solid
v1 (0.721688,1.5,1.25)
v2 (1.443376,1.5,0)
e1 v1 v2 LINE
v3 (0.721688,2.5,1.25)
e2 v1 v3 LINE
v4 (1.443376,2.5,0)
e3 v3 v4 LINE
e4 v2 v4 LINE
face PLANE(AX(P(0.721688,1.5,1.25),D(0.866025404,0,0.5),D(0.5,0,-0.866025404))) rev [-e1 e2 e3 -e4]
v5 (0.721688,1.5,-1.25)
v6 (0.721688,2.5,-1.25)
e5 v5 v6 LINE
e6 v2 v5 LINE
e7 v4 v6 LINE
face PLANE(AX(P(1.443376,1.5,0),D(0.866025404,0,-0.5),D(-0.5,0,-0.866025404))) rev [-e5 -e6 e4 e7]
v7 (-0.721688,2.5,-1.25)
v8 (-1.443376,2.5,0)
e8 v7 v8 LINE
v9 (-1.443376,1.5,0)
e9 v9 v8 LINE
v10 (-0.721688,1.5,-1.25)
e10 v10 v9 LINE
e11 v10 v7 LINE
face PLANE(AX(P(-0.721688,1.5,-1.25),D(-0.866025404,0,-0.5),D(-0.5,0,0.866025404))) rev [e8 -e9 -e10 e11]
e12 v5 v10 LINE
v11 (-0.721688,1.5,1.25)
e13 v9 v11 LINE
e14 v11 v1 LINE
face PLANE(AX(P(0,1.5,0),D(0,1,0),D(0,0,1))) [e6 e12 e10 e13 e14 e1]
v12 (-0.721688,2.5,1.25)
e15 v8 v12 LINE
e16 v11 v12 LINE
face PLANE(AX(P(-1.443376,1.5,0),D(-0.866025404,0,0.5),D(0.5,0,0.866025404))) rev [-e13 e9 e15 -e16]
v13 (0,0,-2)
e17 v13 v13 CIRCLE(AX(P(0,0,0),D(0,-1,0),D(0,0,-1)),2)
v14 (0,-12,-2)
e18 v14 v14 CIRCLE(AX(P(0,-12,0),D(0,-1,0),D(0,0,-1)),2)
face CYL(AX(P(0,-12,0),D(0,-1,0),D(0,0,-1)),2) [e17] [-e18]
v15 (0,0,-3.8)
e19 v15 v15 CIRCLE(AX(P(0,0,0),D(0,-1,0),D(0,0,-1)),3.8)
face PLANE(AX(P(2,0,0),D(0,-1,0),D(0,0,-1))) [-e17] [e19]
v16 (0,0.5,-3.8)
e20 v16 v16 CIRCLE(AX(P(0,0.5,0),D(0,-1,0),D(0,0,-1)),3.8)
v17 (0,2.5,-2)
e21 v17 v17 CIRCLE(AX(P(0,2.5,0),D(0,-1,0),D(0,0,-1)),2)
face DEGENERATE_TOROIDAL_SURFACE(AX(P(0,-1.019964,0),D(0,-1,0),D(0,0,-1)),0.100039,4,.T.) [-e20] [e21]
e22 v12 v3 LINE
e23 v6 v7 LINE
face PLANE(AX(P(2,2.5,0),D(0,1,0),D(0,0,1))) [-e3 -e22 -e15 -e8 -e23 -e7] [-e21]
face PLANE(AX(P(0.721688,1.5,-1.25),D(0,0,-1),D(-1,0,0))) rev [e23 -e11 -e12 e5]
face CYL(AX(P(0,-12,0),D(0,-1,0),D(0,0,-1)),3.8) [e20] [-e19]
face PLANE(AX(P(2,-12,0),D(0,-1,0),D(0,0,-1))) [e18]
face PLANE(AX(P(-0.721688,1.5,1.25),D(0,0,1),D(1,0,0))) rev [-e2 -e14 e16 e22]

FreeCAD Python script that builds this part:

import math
import FreeCAD as App
import Part
import Sketcher
from FreeCAD import Vector
Q = App.Units.Quantity


def add_polygon(sketch, points):
    """Adds a closed chain of lines whose ends are joined by coincident constraints."""
    first, n = sketch.GeometryCount, len(points)
    for a, b in zip(points, points[1:] + points[:1]):
        sketch.addGeometry(Part.LineSegment(App.Vector(*a, 0), App.Vector(*b, 0)), False)
    for i in range(n):
        sketch.addConstraint(Sketcher.Constraint("Coincident", first + i, 2, first + (i + 1) % n, 1))

doc = App.newDocument("Part")
body = doc.addObject("PartDesign::Body", "Body")

# Sketch on XY plane
sketch1 = body.newObject("Sketcher::SketchObject", "Sketch")
sketch1.AttachmentSupport = (doc.getObject("XY_Plane"), [""])
sketch1.MapMode = "FlatFace"
sketch1.addGeometry([
    Part.LineSegment(Vector(2, 0, 0), Vector(3.8, 0, 0)),  # 0
    Part.LineSegment(Vector(3.8, 0, 0), Vector(3.8, 0.5, 0)),  # 1
    Part.ArcOfCircle(Part.Circle(Vector(0.1, -1, 0), Vector(0, 0, 1), 4), math.radians(22), math.radians(62)),  # 2
    Part.LineSegment(Vector(2, 2.5, 0), Vector(0, 2.5, 0)),  # 3
    Part.LineSegment(Vector(0, 2.5, 0), Vector(0, -12, 0)),  # 4
    Part.LineSegment(Vector(0, -12, 0), Vector(2, -12, 0)),  # 5
    Part.LineSegment(Vector(2, -12, 0), Vector(2, 0, 0)),  # 6
], False)
sketch1.addConstraint([
    Sketcher.Constraint("Coincident", 0, 2, 1, 1),
    Sketcher.Constraint("Coincident", 1, 2, 2, 1),
    Sketcher.Constraint("Coincident", 2, 2, 3, 1),
    Sketcher.Constraint("Coincident", 3, 2, 4, 1),
    Sketcher.Constraint("Coincident", 4, 2, 5, 1),
    Sketcher.Constraint("Coincident", 5, 2, 6, 1),
    Sketcher.Constraint("Coincident", 6, 2, 0, 1),
    Sketcher.Constraint("Horizontal", 0),
    Sketcher.Constraint("Vertical", 1),
    Sketcher.Constraint("Horizontal", 3),
    Sketcher.Constraint("Vertical", 4),
    Sketcher.Constraint("Horizontal", 5),
    Sketcher.Constraint("Vertical", 6),
    Sketcher.Constraint("PointOnObject", 0, 2, -1),
    Sketcher.Constraint("PointOnObject", 3, 2, -2),
    Sketcher.Constraint("Vertical", 2, 2, 5, 2),
    Sketcher.Constraint("Radius", 2, 4.0),
    Sketcher.Constraint("DistanceX", 3, 2, 3, 1, 2.0),
    Sketcher.Constraint("DistanceY", 6, 1, 6, 2, 12.0),
    Sketcher.Constraint("DistanceX", 0, 1, 0, 2, 1.8),
    Sketcher.Constraint("DistanceY", 1, 1, 1, 2, 0.5),
    Sketcher.Constraint("DistanceY", 4, 2, 4, 1, 14.5),
])
revolution = body.newObject("PartDesign::Revolution", "Revolution")
revolution.Profile = sketch1
revolution.ReferenceAxis = (sketch1, ["V_Axis"])
revolution.Angle = 360

# Sketch on XZ plane
sketch2 = body.newObject("Sketcher::SketchObject", "Sketch001")
sketch2.AttachmentSupport = (doc.getObject("XZ_Plane"), [""])
sketch2.MapMode = "FlatFace"
sketch2.AttachmentOffset = App.Placement(Vector(0, 0, -2.5), App.Rotation())
add_polygon(sketch2, [(0.7, -1.2), (-0.7, -1.2), (-1.4, 0), (-0.7, 1.2), (0.7, 1.2), (1.4, 0)])  # lines 0-5
sketch2.addConstraint([
    Sketcher.Constraint("Horizontal", 0),
    Sketcher.Constraint("Horizontal", 3),
    Sketcher.Constraint("Symmetric", 0, 2, 3, 2, -1, 1),
    Sketcher.Constraint("Symmetric", 1, 2, 4, 2, -1, 1),
    Sketcher.Constraint("PointOnObject", 1, 2, -1),
    Sketcher.Constraint("Parallel", 2, 5),
    Sketcher.Constraint("Vertical", 0, 2, 2, 2),
    Sketcher.Constraint("Angle", 1, Q("120 deg")),
    Sketcher.Constraint("DistanceY", 0, 2, 2, 2, 2.5),
    Sketcher.Constraint("DistanceX", 0, 2, 0, 1, 1.443376),
])
pocket1 = body.newObject("PartDesign::Pocket", "Pocket")
pocket1.Profile = sketch2
pocket1.Length = 1
pocket1.Reversed = True

doc.recompute()
